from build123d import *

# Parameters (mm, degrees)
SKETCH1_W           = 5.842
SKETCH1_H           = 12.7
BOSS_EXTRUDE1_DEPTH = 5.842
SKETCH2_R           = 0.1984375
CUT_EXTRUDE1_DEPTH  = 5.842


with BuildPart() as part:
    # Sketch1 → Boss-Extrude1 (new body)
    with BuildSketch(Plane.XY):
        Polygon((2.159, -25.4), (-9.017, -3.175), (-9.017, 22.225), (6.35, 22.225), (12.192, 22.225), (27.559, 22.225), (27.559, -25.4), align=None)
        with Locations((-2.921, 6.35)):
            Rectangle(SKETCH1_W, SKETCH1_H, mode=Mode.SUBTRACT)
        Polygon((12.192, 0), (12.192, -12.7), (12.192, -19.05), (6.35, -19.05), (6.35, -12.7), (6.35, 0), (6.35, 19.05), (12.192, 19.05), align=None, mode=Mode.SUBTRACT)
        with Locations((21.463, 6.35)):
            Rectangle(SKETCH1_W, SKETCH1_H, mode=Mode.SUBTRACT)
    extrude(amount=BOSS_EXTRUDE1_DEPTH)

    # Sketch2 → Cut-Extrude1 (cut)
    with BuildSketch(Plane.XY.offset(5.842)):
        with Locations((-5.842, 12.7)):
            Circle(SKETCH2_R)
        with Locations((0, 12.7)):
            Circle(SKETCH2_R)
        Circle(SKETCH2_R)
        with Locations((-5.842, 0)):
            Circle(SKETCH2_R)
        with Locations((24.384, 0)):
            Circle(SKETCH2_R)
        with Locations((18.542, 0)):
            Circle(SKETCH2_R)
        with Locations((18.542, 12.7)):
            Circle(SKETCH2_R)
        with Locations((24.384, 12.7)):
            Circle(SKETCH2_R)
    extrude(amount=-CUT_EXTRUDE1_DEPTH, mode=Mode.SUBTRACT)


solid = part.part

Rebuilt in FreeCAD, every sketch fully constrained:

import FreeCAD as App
import Part
import Sketcher
Q = App.Units.Quantity


def add_polygon(sketch, points):
    """Adds a closed chain of lines whose ends are joined by coincident constraints."""
    first, n = sketch.GeometryCount, len(points)
    for a, b in zip(points, points[1:] + points[:1]):
        sketch.addGeometry(Part.LineSegment(App.Vector(*a, 0), App.Vector(*b, 0)), False)
    for i in range(n):
        sketch.addConstraint(Sketcher.Constraint("Coincident", first + i, 2, first + (i + 1) % n, 1))

doc = App.newDocument("Part")
body = doc.addObject("PartDesign::Body", "Body")

# Sketch on XY plane
sketch1 = body.newObject("Sketcher::SketchObject", "Sketch")
sketch1.AttachmentSupport = (doc.getObject("XY_Plane"), [""])
sketch1.MapMode = "FlatFace"
add_polygon(sketch1, [(-9.017, -3.175), (2.159, -25.4), (27.559, -25.4), (27.559, 22.225), (-9.017, 22.225)])  # lines 0-4
add_polygon(sketch1, [(18.542, 0), (18.542, 12.7), (24.384, 12.7), (24.384, 0)])  # lines 5-8
add_polygon(sketch1, [(12.192, -19.05), (6.35, -19.05), (6.35, 19.05), (12.192, 19.05)])  # lines 9-12
add_polygon(sketch1, [(-5.842, 0), (-5.842, 12.7), (0, 12.7), (0, 0)])  # lines 13-16
sketch1.addConstraint(Sketcher.Constraint("Horizontal", 1))
sketch1.addConstraint(Sketcher.Constraint("Vertical", 2))
sketch1.addConstraint(Sketcher.Constraint("Horizontal", 3))
sketch1.addConstraint(Sketcher.Constraint("Vertical", 4))
sketch1.addConstraint(Sketcher.Constraint("Vertical", 5))
sketch1.addConstraint(Sketcher.Constraint("Horizontal", 6))
sketch1.addConstraint(Sketcher.Constraint("Vertical", 7))
sketch1.addConstraint(Sketcher.Constraint("Horizontal", 8))
sketch1.addConstraint(Sketcher.Constraint("Horizontal", 9))
sketch1.addConstraint(Sketcher.Constraint("Vertical", 10))
sketch1.addConstraint(Sketcher.Constraint("Horizontal", 11))
sketch1.addConstraint(Sketcher.Constraint("Vertical", 12))
sketch1.addConstraint(Sketcher.Constraint("Vertical", 13))
sketch1.addConstraint(Sketcher.Constraint("Horizontal", 14))
sketch1.addConstraint(Sketcher.Constraint("Vertical", 15))
sketch1.addConstraint(Sketcher.Constraint("Horizontal", 16))
sketch1.addConstraint(Sketcher.Constraint("Coincident", 15, 2, -1, 1))
sketch1.addConstraint(Sketcher.Constraint("PointOnObject", 7, 2, -1))
sketch1.addConstraint(Sketcher.Constraint("Horizontal", 6, 2, 13, 2))
sketch1.addConstraint(Sketcher.Constraint("Equal", 8, 9))
sketch1.addConstraint(Sketcher.Constraint("Equal", 11, 14))
sketch1.addConstraint(Sketcher.Constraint("Equal", 1, 4))
sketch1.addConstraint(Sketcher.Constraint("DistanceX", 1, 1, 1, 2, Q("1 in")))
sketch1.addConstraint(Sketcher.Constraint("DistanceY", 5, 1, 5, 2, Q("0.5 in")))
sketch1.addConstraint(Sketcher.Constraint("DistanceY", 10, 1, 10, 2, Q("1.5 in")))
sketch1.addConstraint(Sketcher.Constraint("DistanceY", 0, 2, -1, 1, Q("1 in")))
sketch1.addConstraint(Sketcher.Constraint("DistanceX", 3, 2, 3, 1, Q("1.44 in")))
sketch1.addConstraint(Sketcher.Constraint("DistanceX", 6, 1, 6, 2, Q("0.23 in")))
sketch1.addConstraint(Sketcher.Constraint("DistanceY", 2, 1, 2, 2, Q("1.875 in")))
sketch1.addConstraint(Sketcher.Constraint("DistanceX", -1, 1, 5, 2, Q("0.73 in")))
sketch1.addConstraint(Sketcher.Constraint("DistanceX", -1, 1, 9, 2, Q("0.25 in")))
sketch1.addConstraint(Sketcher.Constraint("DistanceY", 9, 2, -1, 1, Q("0.75 in")))
sketch1.addConstraint(Sketcher.Constraint("DistanceX", -1, 1, 0, 2, Q("0.085 in")))
pad1 = body.newObject("PartDesign::Pad", "Pad")
pad1.Profile = sketch1
pad1.Length = Q("0.23 in")

# Sketch on XY plane
sketch2 = body.newObject("Sketcher::SketchObject", "Sketch001")
sketch2.AttachmentSupport = (doc.getObject("XY_Plane"), [""])
sketch2.MapMode = "FlatFace"
sketch2.AttachmentOffset = App.Placement(App.Vector(0, 0, 0.23 * 25.4), App.Rotation())
sketch2.addGeometry(Part.Circle(App.Vector(-5.842, 12.7, 0), App.Vector(0, 0, 1), 0.198437), False)
sketch2.addGeometry(Part.Circle(App.Vector(0, 12.7, 0), App.Vector(0, 0, 1), 0.198437), False)
sketch2.addGeometry(Part.Circle(App.Vector(0, 0, 0), App.Vector(0, 0, 1), 0.198437), False)
sketch2.addGeometry(Part.Circle(App.Vector(-5.842, 0, 0), App.Vector(0, 0, 1), 0.198437), False)
sketch2.addGeometry(Part.Circle(App.Vector(24.384, 0, 0), App.Vector(0, 0, 1), 0.198437), False)
sketch2.addGeometry(Part.Circle(App.Vector(18.542, 0, 0), App.Vector(0, 0, 1), 0.198437), False)
sketch2.addGeometry(Part.Circle(App.Vector(18.542, 12.7, 0), App.Vector(0, 0, 1), 0.198437), False)
sketch2.addGeometry(Part.Circle(App.Vector(24.384, 12.7, 0), App.Vector(0, 0, 1), 0.198437), False)
sketch2.addConstraint(Sketcher.Constraint("Coincident", 2, 3, -1, 1))
sketch2.addConstraint(Sketcher.Constraint("Equal", 0, 1))
sketch2.addConstraint(Sketcher.Constraint("Equal", 1, 2))
sketch2.addConstraint(Sketcher.Constraint("Equal", 2, 3))
sketch2.addConstraint(Sketcher.Constraint("Equal", 3, 4))
sketch2.addConstraint(Sketcher.Constraint("Equal", 4, 5))
sketch2.addConstraint(Sketcher.Constraint("Equal", 5, 6))
sketch2.addConstraint(Sketcher.Constraint("Equal", 6, 7))
sketch2.addConstraint(Sketcher.Constraint("PointOnObject", 1, 3, -2))
sketch2.addConstraint(Sketcher.Constraint("PointOnObject", 3, 3, -1))
sketch2.addConstraint(Sketcher.Constraint("PointOnObject", 4, 3, -1))
sketch2.addConstraint(Sketcher.Constraint("PointOnObject", 5, 3, -1))
sketch2.addConstraint(Sketcher.Constraint("Horizontal", 0, 3, 1, 3))
sketch2.addConstraint(Sketcher.Constraint("Horizontal", 1, 3, 6, 3))
sketch2.addConstraint(Sketcher.Constraint("Horizontal", 6, 3, 7, 3))
sketch2.addConstraint(Sketcher.Constraint("Vertical", 0, 3, 3, 3))
sketch2.addConstraint(Sketcher.Constraint("Vertical", 5, 3, 6, 3))
sketch2.addConstraint(Sketcher.Constraint("Vertical", 4, 3, 7, 3))
sketch2.addConstraint(Sketcher.Constraint("Diameter", 0, Q("0.015625 in")))
sketch2.addConstraint(Sketcher.Constraint("DistanceY", -1, 1, 0, 3, Q("0.5 in")))
sketch2.addConstraint(Sketcher.Constraint("DistanceX", 0, 3, -1, 1, Q("0.23 in")))
sketch2.addConstraint(Sketcher.Constraint("DistanceX", -1, 1, 4, 3, Q("0.96 in")))
sketch2.addConstraint(Sketcher.Constraint("DistanceX", -1, 1, 5, 3, Q("0.73 in")))
pocket1 = body.newObject("PartDesign::Pocket", "Pocket")
pocket1.Profile = sketch2
pocket1.Length = Q("0.23 in")

doc.recompute()
